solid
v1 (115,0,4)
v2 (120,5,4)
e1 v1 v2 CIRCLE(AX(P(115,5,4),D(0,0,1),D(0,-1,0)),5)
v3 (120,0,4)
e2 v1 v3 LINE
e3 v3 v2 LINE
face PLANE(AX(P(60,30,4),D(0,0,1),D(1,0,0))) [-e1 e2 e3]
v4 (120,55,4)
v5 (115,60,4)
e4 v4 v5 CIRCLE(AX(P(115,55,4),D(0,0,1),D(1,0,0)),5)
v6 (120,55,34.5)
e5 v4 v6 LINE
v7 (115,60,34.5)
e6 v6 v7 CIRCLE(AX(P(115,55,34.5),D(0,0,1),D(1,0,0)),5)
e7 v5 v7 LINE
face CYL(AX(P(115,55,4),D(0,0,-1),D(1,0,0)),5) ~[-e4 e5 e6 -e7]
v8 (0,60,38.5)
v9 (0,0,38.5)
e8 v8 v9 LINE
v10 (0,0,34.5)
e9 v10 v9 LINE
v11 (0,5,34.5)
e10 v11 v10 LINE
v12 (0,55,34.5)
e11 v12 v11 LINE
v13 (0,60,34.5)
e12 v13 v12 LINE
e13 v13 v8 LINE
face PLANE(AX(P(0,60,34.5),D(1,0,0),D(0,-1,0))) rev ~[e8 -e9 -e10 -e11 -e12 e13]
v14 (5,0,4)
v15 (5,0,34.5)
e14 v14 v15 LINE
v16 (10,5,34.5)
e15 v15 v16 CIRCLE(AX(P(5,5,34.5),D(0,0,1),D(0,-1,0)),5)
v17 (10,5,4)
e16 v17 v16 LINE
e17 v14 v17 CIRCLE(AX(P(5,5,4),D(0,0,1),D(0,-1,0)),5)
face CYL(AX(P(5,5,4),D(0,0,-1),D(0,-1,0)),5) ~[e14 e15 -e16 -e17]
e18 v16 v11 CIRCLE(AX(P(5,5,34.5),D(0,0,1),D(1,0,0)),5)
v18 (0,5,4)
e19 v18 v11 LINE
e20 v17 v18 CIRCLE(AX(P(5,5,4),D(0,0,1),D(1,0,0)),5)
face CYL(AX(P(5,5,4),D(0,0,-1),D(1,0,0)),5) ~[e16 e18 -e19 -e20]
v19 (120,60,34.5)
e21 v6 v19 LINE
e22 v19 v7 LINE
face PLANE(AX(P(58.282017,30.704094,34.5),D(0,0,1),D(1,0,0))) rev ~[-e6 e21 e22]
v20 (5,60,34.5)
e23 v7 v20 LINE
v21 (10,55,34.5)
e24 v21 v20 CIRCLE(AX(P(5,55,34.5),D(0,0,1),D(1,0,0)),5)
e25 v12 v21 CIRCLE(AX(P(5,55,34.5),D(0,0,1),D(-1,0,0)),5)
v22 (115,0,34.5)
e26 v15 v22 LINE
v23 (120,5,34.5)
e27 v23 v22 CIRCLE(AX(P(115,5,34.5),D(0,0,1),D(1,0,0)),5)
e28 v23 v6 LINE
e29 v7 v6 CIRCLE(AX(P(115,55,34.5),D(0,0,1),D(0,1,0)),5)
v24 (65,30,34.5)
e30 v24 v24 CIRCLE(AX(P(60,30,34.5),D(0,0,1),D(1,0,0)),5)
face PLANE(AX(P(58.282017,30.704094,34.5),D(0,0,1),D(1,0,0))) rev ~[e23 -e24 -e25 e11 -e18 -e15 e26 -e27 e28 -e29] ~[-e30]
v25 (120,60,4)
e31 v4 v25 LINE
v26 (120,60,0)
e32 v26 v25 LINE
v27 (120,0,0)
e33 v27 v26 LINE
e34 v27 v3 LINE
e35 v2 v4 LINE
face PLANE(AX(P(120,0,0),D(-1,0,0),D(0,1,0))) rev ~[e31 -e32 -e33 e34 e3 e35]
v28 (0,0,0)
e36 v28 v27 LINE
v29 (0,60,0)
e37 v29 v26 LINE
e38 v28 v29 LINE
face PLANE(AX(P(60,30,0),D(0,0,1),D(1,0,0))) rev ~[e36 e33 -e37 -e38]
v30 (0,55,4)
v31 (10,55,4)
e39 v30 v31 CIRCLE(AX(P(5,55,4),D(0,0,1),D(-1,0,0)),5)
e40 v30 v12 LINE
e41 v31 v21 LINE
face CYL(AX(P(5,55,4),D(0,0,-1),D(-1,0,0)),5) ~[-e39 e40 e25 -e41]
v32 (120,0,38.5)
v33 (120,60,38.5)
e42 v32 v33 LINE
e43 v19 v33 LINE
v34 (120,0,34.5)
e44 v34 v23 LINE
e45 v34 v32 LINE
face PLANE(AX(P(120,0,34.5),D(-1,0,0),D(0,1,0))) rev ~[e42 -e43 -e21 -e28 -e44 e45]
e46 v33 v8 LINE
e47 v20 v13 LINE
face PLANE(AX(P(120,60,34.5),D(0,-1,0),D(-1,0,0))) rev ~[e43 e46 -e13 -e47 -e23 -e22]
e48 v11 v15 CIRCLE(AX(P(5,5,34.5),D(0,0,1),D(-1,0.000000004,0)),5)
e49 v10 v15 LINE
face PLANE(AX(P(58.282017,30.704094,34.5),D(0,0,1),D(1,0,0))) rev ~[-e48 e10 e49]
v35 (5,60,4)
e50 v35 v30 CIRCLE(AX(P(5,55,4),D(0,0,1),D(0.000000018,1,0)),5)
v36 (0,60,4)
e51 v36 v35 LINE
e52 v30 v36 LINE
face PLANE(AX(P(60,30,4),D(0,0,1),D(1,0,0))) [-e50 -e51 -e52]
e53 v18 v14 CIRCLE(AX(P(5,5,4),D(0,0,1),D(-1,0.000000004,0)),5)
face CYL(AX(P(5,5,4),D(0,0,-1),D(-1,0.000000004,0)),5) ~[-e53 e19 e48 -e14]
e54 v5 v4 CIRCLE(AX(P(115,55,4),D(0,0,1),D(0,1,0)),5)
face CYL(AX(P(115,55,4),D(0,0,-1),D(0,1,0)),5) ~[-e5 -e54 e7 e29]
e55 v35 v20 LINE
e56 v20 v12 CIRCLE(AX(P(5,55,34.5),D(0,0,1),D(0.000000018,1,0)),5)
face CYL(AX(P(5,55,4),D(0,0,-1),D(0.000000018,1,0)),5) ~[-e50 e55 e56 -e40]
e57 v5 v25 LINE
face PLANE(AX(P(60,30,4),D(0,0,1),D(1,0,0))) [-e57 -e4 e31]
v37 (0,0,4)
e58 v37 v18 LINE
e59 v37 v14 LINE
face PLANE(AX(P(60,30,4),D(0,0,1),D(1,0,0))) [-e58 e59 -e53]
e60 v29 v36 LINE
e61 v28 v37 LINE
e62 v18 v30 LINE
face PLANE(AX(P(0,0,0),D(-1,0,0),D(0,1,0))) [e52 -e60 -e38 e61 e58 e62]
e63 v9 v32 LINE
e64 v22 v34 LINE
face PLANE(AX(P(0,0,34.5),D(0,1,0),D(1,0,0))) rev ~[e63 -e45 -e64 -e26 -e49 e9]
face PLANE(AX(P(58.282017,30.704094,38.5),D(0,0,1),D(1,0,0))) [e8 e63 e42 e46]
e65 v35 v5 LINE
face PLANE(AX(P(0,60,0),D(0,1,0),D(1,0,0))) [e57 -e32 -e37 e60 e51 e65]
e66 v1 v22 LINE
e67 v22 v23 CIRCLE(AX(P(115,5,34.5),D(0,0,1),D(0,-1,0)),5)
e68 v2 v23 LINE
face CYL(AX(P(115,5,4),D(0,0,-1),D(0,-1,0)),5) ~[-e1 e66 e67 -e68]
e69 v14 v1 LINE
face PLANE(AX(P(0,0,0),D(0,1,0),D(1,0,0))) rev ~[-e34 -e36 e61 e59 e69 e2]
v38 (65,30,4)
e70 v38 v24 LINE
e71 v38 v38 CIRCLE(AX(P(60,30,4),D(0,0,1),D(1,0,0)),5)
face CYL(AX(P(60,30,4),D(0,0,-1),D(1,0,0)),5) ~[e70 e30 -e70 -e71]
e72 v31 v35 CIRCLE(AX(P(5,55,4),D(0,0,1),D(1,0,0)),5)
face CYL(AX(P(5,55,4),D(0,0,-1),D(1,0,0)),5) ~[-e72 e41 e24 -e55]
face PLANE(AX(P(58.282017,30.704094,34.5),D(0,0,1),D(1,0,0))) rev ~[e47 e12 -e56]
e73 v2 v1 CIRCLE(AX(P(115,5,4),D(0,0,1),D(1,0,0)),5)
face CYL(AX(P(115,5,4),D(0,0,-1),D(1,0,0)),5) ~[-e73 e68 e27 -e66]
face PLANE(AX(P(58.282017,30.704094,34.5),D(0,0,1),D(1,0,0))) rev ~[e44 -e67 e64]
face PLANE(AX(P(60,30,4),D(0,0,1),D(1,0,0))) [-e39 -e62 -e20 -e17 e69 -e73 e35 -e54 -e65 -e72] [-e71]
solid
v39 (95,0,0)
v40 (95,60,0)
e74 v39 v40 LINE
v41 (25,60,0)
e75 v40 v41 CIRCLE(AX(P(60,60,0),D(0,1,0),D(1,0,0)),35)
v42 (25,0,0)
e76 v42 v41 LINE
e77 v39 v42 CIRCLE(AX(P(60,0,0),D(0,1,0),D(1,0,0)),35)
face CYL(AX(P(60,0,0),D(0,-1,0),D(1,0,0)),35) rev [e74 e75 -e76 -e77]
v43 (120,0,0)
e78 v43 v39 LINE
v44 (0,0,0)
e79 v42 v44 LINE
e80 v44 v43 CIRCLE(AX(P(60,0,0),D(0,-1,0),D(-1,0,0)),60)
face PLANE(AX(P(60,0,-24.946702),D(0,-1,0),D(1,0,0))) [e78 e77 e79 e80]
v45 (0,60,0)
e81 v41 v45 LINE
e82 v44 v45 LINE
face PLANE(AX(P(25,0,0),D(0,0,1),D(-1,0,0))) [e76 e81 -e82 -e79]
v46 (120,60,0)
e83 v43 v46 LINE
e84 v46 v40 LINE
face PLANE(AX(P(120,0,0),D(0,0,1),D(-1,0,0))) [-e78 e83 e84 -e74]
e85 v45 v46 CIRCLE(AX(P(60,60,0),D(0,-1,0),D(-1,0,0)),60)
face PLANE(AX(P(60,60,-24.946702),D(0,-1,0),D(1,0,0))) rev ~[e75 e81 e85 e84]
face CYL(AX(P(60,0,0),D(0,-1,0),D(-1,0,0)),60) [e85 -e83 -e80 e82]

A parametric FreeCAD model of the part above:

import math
import FreeCAD as App
import Part
import Sketcher
from FreeCAD import Vector
Q = App.Units.Quantity

doc = App.newDocument("Part")
body = doc.addObject("PartDesign::Body", "Body")

sketch1 = body.newObject("Sketcher::SketchObject", "Sketch")
sketch1.AttachmentSupport = (doc.getObject("XY_Plane"), [""])
sketch1.MapMode = "FlatFace"
sketch1.addGeometry(Part.LineSegment(Vector(0, 60, 0), Vector(0, 0, 0)), False)
sketch1.addGeometry(Part.LineSegment(Vector(0, 0, 0), Vector(120, 0, 0)), False)
sketch1.addGeometry(Part.LineSegment(Vector(120, 0, 0), Vector(120, 60, 0)), False)
sketch1.addGeometry(Part.LineSegment(Vector(120, 60, 0), Vector(0, 60, 0)), False)
sketch1.addConstraint(Sketcher.Constraint("Coincident", 0, 2, 1, 1))
sketch1.addConstraint(Sketcher.Constraint("Coincident", 1, 2, 2, 1))
sketch1.addConstraint(Sketcher.Constraint("Coincident", 2, 2, 3, 1))
sketch1.addConstraint(Sketcher.Constraint("Coincident", 3, 2, 0, 1))
sketch1.addConstraint(Sketcher.Constraint("Vertical", 0))
sketch1.addConstraint(Sketcher.Constraint("Horizontal", 1))
sketch1.addConstraint(Sketcher.Constraint("Vertical", 2))
sketch1.addConstraint(Sketcher.Constraint("Horizontal", 3))
sketch1.addConstraint(Sketcher.Constraint("Coincident", 0, 2, -1, 1))
sketch1.addConstraint(Sketcher.Constraint("DistanceX", 1, 1, 1, 2, Q("120 mm")))
sketch1.addConstraint(Sketcher.Constraint("DistanceY", 0, 2, 0, 1, Q("60 mm")))
pad1 = body.newObject("PartDesign::Pad", "Pad")
pad1.Profile = sketch1
pad1.Length = 4

sketch2 = body.newObject("Sketcher::SketchObject", "Sketch001")
sketch2.AttachmentSupport = (doc.getObject("XY_Plane"), [""])
sketch2.MapMode = "FlatFace"
sketch2.AttachmentOffset = App.Placement(Vector(0, 0, 4), App.Rotation())
sketch2.addGeometry(Part.Circle(Vector(60, 30, 0), Vector(0, 0, 1), 5), False)
sketch2.addConstraint(Sketcher.Constraint("Diameter", 0, Q("10 mm")))
sketch2.addConstraint(Sketcher.Constraint("DistanceX", -1, 1, 0, 3, Q("60 mm")))
sketch2.addConstraint(Sketcher.Constraint("DistanceY", -1, 1, 0, 3, Q("30 mm")))
pad2 = body.newObject("PartDesign::Pad", "Pad001")
pad2.Profile = sketch2
pad2.Length = 30.5

sketch3 = body.newObject("Sketcher::SketchObject", "Sketch002")
sketch3.AttachmentSupport = (doc.getObject("XY_Plane"), [""])
sketch3.MapMode = "FlatFace"
sketch3.AttachmentOffset = App.Placement(Vector(0, 0, 4), App.Rotation())
sketch3.addGeometry(Part.ArcOfCircle(Part.Circle(Vector(5, 55, 0), Vector(0, 0, 1), 5), math.radians(180), math.radians(360)), False)
sketch3.addGeometry(Part.ArcOfCircle(Part.Circle(Vector(5, 55, 0), Vector(0, 0, 1), 5), math.radians(0), math.radians(90)), False)
sketch3.addGeometry(Part.ArcOfCircle(Part.Circle(Vector(5, 55, 0), Vector(0, 0, 1), 5), math.radians(90), math.radians(180)), False)
sketch3.addGeometry(Part.ArcOfCircle(Part.Circle(Vector(5, 5, 0), Vector(0, 0, 1), 5), math.radians(0), math.radians(180)), False)
sketch3.addGeometry(Part.ArcOfCircle(Part.Circle(Vector(5, 5, 0), Vector(0, 0, 1), 5), math.radians(180), math.radians(270)), False)
sketch3.addGeometry(Part.ArcOfCircle(Part.Circle(Vector(5, 5, 0), Vector(0, 0, 1), 5), math.radians(-90), math.radians(0)), False)
sketch3.addGeometry(Part.ArcOfCircle(Part.Circle(Vector(115, 55, 0), Vector(0, 0, 1), 5), math.radians(0), math.radians(90)), False)
sketch3.addGeometry(Part.ArcOfCircle(Part.Circle(Vector(115, 55, 0), Vector(0, 0, 1), 5), math.radians(90), math.radians(360)), False)
sketch3.addGeometry(Part.ArcOfCircle(Part.Circle(Vector(115, 5, 0), Vector(0, 0, 1), 5), math.radians(-90), math.radians(0)), False)
sketch3.addGeometry(Part.ArcOfCircle(Part.Circle(Vector(115, 5, 0), Vector(0, 0, 1), 5), math.radians(0), math.radians(270)), False)
sketch3.addConstraint(Sketcher.Constraint("Tangent", 0, 2, 1, 1))
sketch3.addConstraint(Sketcher.Constraint("Tangent", 1, 2, 2, 1))
sketch3.addConstraint(Sketcher.Constraint("Tangent", 2, 2, 0, 1))
sketch3.addConstraint(Sketcher.Constraint("Tangent", 3, 2, 4, 1))
sketch3.addConstraint(Sketcher.Constraint("Tangent", 4, 2, 5, 1))
sketch3.addConstraint(Sketcher.Constraint("Tangent", 5, 2, 3, 1))
sketch3.addConstraint(Sketcher.Constraint("Tangent", 6, 1, 7, 2))
sketch3.addConstraint(Sketcher.Constraint("Coincident", 7, 1, 6, 2))
sketch3.addConstraint(Sketcher.Constraint("Tangent", 8, 1, 9, 2))
sketch3.addConstraint(Sketcher.Constraint("Coincident", 9, 1, 8, 2))
sketch3.addConstraint(Sketcher.Constraint("Equal", 2, 3))
sketch3.addConstraint(Sketcher.Constraint("Equal", 5, 6))
sketch3.addConstraint(Sketcher.Constraint("Equal", 7, 8))
sketch3.addConstraint(Sketcher.Constraint("PointOnObject", 2, 2, -2))
sketch3.addConstraint(Sketcher.Constraint("PointOnObject", 3, 2, -2))
sketch3.addConstraint(Sketcher.Constraint("PointOnObject", 4, 2, -1))
sketch3.addConstraint(Sketcher.Constraint("PointOnObject", 8, 1, -1))
sketch3.addConstraint(Sketcher.Constraint("Horizontal", 2, 3, 6, 3))
sketch3.addConstraint(Sketcher.Constraint("Horizontal", 7, 3, 0, 2))
sketch3.addConstraint(Sketcher.Constraint("Horizontal", 0, 2, 2, 2))
sketch3.addConstraint(Sketcher.Constraint("Horizontal", 9, 3, 3, 2))
sketch3.addConstraint(Sketcher.Constraint("Horizontal", 3, 2, 5, 2))
sketch3.addConstraint(Sketcher.Constraint("Horizontal", 2, 2, 6, 1))
sketch3.addConstraint(Sketcher.Constraint("Horizontal", 5, 2, 9, 1))
sketch3.addConstraint(Sketcher.Constraint("Vertical", 7, 3, 8, 3))
sketch3.addConstraint(Sketcher.Constraint("Vertical", 5, 3, 1, 2))
sketch3.addConstraint(Sketcher.Constraint("Vertical", 1, 2, 4, 2))
sketch3.addConstraint(Sketcher.Constraint("Vertical", 9, 3, 7, 1))
sketch3.addConstraint(Sketcher.Constraint("Vertical", 7, 1, 8, 1))
sketch3.addConstraint(Sketcher.Constraint("Radius", 0, Q("5 mm")))
sketch3.addConstraint(Sketcher.Constraint("DistanceY", -1, 1, 0, 3, Q("55 mm")))
sketch3.addConstraint(Sketcher.Constraint("DistanceX", -1, 1, 6, 3, Q("115 mm")))
pad3 = body.newObject("PartDesign::Pad", "Pad002")
pad3.Profile = sketch3
pad3.Length = 30.5

sketch4 = body.newObject("Sketcher::SketchObject", "Sketch003")
sketch4.AttachmentSupport = (doc.getObject("XY_Plane"), [""])
sketch4.MapMode = "FlatFace"
sketch4.AttachmentOffset = App.Placement(Vector(0, 0, 34.5), App.Rotation())
sketch4.addGeometry(Part.LineSegment(Vector(0, 0, 0), Vector(120, 0, 0)), False)
sketch4.addGeometry(Part.LineSegment(Vector(120, 0, 0), Vector(120, 60, 0)), False)
sketch4.addGeometry(Part.LineSegment(Vector(120, 60, 0), Vector(0, 60, 0)), False)
sketch4.addGeometry(Part.LineSegment(Vector(0, 60, 0), Vector(0, 0, 0)), False)
sketch4.addConstraint(Sketcher.Constraint("Coincident", 0, 2, 1, 1))
sketch4.addConstraint(Sketcher.Constraint("Coincident", 1, 2, 2, 1))
sketch4.addConstraint(Sketcher.Constraint("Coincident", 2, 2, 3, 1))
sketch4.addConstraint(Sketcher.Constraint("Coincident", 3, 2, 0, 1))
sketch4.addConstraint(Sketcher.Constraint("Horizontal", 0))
sketch4.addConstraint(Sketcher.Constraint("Vertical", 1))
sketch4.addConstraint(Sketcher.Constraint("Horizontal", 2))
sketch4.addConstraint(Sketcher.Constraint("Vertical", 3))
sketch4.addConstraint(Sketcher.Constraint("Coincident", 3, 2, -1, 1))
sketch4.addConstraint(Sketcher.Constraint("DistanceX", 0, 1, 0, 2, Q("120 mm")))
sketch4.addConstraint(Sketcher.Constraint("DistanceY", 1, 1, 1, 2, Q("60 mm")))
pad4 = body.newObject("PartDesign::Pad", "Pad003")
pad4.Profile = sketch4
pad4.Length = 4
body2 = doc.addObject("PartDesign::Body", "Body001")

sketch5 = body2.newObject("Sketcher::SketchObject", "Sketch004")
sketch5.AttachmentSupport = (doc.getObject("XZ_Plane001"), [""])
sketch5.MapMode = "FlatFace"
sketch5.addGeometry(Part.ArcOfCircle(Part.Circle(Vector(60, 0, 0), Vector(0, 0, 1), 35), math.radians(180), math.radians(360)), False)
sketch5.addGeometry(Part.LineSegment(Vector(25, 0, 0), Vector(0, 0, 0)), False)
sketch5.addGeometry(Part.ArcOfCircle(Part.Circle(Vector(60, 0, 0), Vector(0, 0, 1), 60), math.radians(180), math.radians(360)), False)
sketch5.addGeometry(Part.LineSegment(Vector(120, 0, 0), Vector(95, 0, 0)), False)
sketch5.addConstraint(Sketcher.Constraint("Coincident", 0, 1, 1, 1))
sketch5.addConstraint(Sketcher.Constraint("Coincident", 1, 2, 2, 1))
sketch5.addConstraint(Sketcher.Constraint("Coincident", 2, 2, 3, 1))
sketch5.addConstraint(Sketcher.Constraint("Coincident", 3, 2, 0, 2))
sketch5.addConstraint(Sketcher.Constraint("Horizontal", 1))
sketch5.addConstraint(Sketcher.Constraint("Horizontal", 3))
sketch5.addConstraint(Sketcher.Constraint("Coincident", 1, 2, -1, 1))
sketch5.addConstraint(Sketcher.Constraint("Coincident", 2, 3, 0, 3))
sketch5.addConstraint(Sketcher.Constraint("PointOnObject", 0, 3, -1))
sketch5.addConstraint(Sketcher.Constraint("PointOnObject", 2, 2, -1))
sketch5.addConstraint(Sketcher.Constraint("Radius", 0, Q("35 mm")))
sketch5.addConstraint(Sketcher.Constraint("Radius", 2, Q("60 mm")))
pad5 = body2.newObject("PartDesign::Pad", "Pad004")
pad5.Profile = sketch5
pad5.Length = 60
pad5.Reversed = True

doc.recompute()
